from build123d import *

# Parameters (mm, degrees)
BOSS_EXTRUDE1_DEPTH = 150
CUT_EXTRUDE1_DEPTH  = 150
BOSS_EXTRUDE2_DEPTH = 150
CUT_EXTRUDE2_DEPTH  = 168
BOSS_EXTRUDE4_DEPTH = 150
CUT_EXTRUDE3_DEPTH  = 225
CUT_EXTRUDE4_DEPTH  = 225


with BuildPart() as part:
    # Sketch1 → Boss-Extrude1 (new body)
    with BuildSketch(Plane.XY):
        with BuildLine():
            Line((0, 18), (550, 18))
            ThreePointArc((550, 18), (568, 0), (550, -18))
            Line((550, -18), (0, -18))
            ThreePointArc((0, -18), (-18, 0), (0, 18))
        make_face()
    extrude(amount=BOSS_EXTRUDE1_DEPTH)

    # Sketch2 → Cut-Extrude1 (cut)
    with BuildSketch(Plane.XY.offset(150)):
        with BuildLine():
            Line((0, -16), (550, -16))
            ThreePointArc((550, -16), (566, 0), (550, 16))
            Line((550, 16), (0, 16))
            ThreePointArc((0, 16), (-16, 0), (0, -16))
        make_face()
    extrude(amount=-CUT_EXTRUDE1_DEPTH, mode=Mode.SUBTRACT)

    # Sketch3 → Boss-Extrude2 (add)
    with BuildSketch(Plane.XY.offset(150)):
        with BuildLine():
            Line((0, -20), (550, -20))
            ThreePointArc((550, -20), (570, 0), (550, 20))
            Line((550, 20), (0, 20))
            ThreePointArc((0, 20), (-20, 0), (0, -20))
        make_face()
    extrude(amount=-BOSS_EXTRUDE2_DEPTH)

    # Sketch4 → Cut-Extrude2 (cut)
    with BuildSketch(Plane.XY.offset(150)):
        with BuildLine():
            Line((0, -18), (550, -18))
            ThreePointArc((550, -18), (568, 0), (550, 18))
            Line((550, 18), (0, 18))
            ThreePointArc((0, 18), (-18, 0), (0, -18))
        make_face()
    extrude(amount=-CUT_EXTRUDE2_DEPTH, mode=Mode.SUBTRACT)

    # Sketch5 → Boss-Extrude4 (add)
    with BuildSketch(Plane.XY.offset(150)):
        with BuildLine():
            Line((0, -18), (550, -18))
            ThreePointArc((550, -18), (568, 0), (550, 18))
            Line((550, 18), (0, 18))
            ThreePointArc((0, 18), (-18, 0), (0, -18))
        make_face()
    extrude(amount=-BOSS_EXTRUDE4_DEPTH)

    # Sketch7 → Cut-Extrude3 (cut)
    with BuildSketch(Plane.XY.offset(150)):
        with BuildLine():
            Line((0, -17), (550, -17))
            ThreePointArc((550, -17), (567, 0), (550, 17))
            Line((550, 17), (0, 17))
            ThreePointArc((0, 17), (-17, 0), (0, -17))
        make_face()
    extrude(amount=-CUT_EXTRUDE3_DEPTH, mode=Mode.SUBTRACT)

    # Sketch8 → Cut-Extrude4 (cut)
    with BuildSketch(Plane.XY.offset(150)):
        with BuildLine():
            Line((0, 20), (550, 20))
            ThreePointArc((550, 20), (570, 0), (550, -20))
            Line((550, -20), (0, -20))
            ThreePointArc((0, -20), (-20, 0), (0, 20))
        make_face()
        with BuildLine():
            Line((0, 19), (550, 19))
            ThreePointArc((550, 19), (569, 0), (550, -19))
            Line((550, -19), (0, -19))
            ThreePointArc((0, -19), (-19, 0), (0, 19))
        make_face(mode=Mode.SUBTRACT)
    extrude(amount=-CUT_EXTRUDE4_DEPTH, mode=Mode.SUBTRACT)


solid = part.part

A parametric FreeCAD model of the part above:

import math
import FreeCAD as App
import Part
import Sketcher
from FreeCAD import Vector
Q = App.Units.Quantity

doc = App.newDocument("Part")
body = doc.addObject("PartDesign::Body", "Body")

sketch1 = body.newObject("Sketcher::SketchObject", "Sketch")
sketch1.AttachmentSupport = (doc.getObject("XY_Plane"), [""])
sketch1.MapMode = "FlatFace"
sketch1.addGeometry(Part.LineSegment(Vector(550, 18, 0), Vector(0, 18, 0)), False)
sketch1.addGeometry(Part.ArcOfCircle(Part.Circle(Vector(0, 0, 0), Vector(0, 0, 1), 18), math.radians(90), math.radians(270)), False)
sketch1.addGeometry(Part.LineSegment(Vector(0, -18, 0), Vector(550, -18, 0)), False)
sketch1.addGeometry(Part.ArcOfCircle(Part.Circle(Vector(550, 0, 0), Vector(0, 0, 1), 18), math.radians(-90), math.radians(90)), False)
sketch1.addConstraint(Sketcher.Constraint("Tangent", 0, 2, 1, 1))
sketch1.addConstraint(Sketcher.Constraint("Tangent", 1, 2, 2, 1))
sketch1.addConstraint(Sketcher.Constraint("Tangent", 2, 2, 3, 1))
sketch1.addConstraint(Sketcher.Constraint("Tangent", 3, 2, 0, 1))
sketch1.addConstraint(Sketcher.Constraint("Horizontal", 0))
sketch1.addConstraint(Sketcher.Constraint("Horizontal", 2))
sketch1.addConstraint(Sketcher.Constraint("Coincident", 1, 3, -1, 1))
sketch1.addConstraint(Sketcher.Constraint("Radius", 1, Q("18 mm")))
sketch1.addConstraint(Sketcher.Constraint("DistanceX", 0, 2, 0, 1, Q("550 mm")))
pad1 = body.newObject("PartDesign::Pad", "Pad")
pad1.Profile = sketch1
pad1.Length = 150

sketch2 = body.newObject("Sketcher::SketchObject", "Sketch001")
sketch2.AttachmentSupport = (doc.getObject("XY_Plane"), [""])
sketch2.MapMode = "FlatFace"
sketch2.AttachmentOffset = App.Placement(Vector(0, 0, 150), App.Rotation())
sketch2.addGeometry(Part.LineSegment(Vector(0, -16, 0), Vector(550, -16, 0)), False)
sketch2.addGeometry(Part.ArcOfCircle(Part.Circle(Vector(550, 0, 0), Vector(0, 0, 1), 16), math.radians(-90), math.radians(90)), False)
sketch2.addGeometry(Part.LineSegment(Vector(550, 16, 0), Vector(0, 16, 0)), False)
sketch2.addGeometry(Part.ArcOfCircle(Part.Circle(Vector(0, 0, 0), Vector(0, 0, 1), 16), math.radians(90), math.radians(270)), False)
sketch2.addConstraint(Sketcher.Constraint("Tangent", 0, 2, 1, 1))
sketch2.addConstraint(Sketcher.Constraint("Tangent", 1, 2, 2, 1))
sketch2.addConstraint(Sketcher.Constraint("Tangent", 2, 2, 3, 1))
sketch2.addConstraint(Sketcher.Constraint("Tangent", 3, 2, 0, 1))
sketch2.addConstraint(Sketcher.Constraint("Horizontal", 0))
sketch2.addConstraint(Sketcher.Constraint("Horizontal", 2))
sketch2.addConstraint(Sketcher.Constraint("Coincident", 3, 3, -1, 1))
sketch2.addConstraint(Sketcher.Constraint("Radius", 1, Q("16 mm")))
sketch2.addConstraint(Sketcher.Constraint("DistanceX", 0, 1, 0, 2, Q("550 mm")))
pocket1 = body.newObject("PartDesign::Pocket", "Pocket")
pocket1.Profile = sketch2
pocket1.Length = 150

sketch3 = body.newObject("Sketcher::SketchObject", "Sketch002")
sketch3.AttachmentSupport = (doc.getObject("XY_Plane"), [""])
sketch3.MapMode = "FlatFace"
sketch3.AttachmentOffset = App.Placement(Vector(0, 0, 150), App.Rotation())
sketch3.addGeometry(Part.LineSegment(Vector(0, -20, 0), Vector(550, -20, 0)), False)
sketch3.addGeometry(Part.ArcOfCircle(Part.Circle(Vector(550, 0, 0), Vector(0, 0, 1), 20), math.radians(-90), math.radians(90)), False)
sketch3.addGeometry(Part.LineSegment(Vector(550, 20, 0), Vector(0, 20, 0)), False)
sketch3.addGeometry(Part.ArcOfCircle(Part.Circle(Vector(0, 0, 0), Vector(0, 0, 1), 20), math.radians(90), math.radians(270)), False)
sketch3.addConstraint(Sketcher.Constraint("Tangent", 0, 2, 1, 1))
sketch3.addConstraint(Sketcher.Constraint("Tangent", 1, 2, 2, 1))
sketch3.addConstraint(Sketcher.Constraint("Tangent", 2, 2, 3, 1))
sketch3.addConstraint(Sketcher.Constraint("Tangent", 3, 2, 0, 1))
sketch3.addConstraint(Sketcher.Constraint("Horizontal", 0))
sketch3.addConstraint(Sketcher.Constraint("Horizontal", 2))
sketch3.addConstraint(Sketcher.Constraint("Coincident", 3, 3, -1, 1))
sketch3.addConstraint(Sketcher.Constraint("Radius", 1, Q("20 mm")))
sketch3.addConstraint(Sketcher.Constraint("DistanceX", 0, 1, 0, 2, Q("550 mm")))
pad2 = body.newObject("PartDesign::Pad", "Pad001")
pad2.Profile = sketch3
pad2.Length = 150
pad2.Reversed = True

sketch4 = body.newObject("Sketcher::SketchObject", "Sketch003")
sketch4.AttachmentSupport = (doc.getObject("XY_Plane"), [""])
sketch4.MapMode = "FlatFace"
sketch4.AttachmentOffset = App.Placement(Vector(0, 0, 150), App.Rotation())
sketch4.addGeometry(Part.LineSegment(Vector(0, -18, 0), Vector(550, -18, 0)), False)
sketch4.addGeometry(Part.ArcOfCircle(Part.Circle(Vector(550, 0, 0), Vector(0, 0, 1), 18), math.radians(-90), math.radians(90)), False)
sketch4.addGeometry(Part.LineSegment(Vector(550, 18, 0), Vector(0, 18, 0)), False)
sketch4.addGeometry(Part.ArcOfCircle(Part.Circle(Vector(0, 0, 0), Vector(0, 0, 1), 18), math.radians(90), math.radians(270)), False)
sketch4.addConstraint(Sketcher.Constraint("Tangent", 0, 2, 1, 1))
sketch4.addConstraint(Sketcher.Constraint("Tangent", 1, 2, 2, 1))
sketch4.addConstraint(Sketcher.Constraint("Tangent", 2, 2, 3, 1))
sketch4.addConstraint(Sketcher.Constraint("Tangent", 3, 2, 0, 1))
sketch4.addConstraint(Sketcher.Constraint("Horizontal", 0))
sketch4.addConstraint(Sketcher.Constraint("Horizontal", 2))
sketch4.addConstraint(Sketcher.Constraint("Coincident", 3, 3, -1, 1))
sketch4.addConstraint(Sketcher.Constraint("Radius", 1, Q("18 mm")))
sketch4.addConstraint(Sketcher.Constraint("DistanceX", 0, 1, 0, 2, Q("550 mm")))
pocket2 = body.newObject("PartDesign::Pocket", "Pocket001")
pocket2.Profile = sketch4
pocket2.Length = 168

sketch5 = body.newObject("Sketcher::SketchObject", "Sketch004")
sketch5.AttachmentSupport = (doc.getObject("XY_Plane"), [""])
sketch5.MapMode = "FlatFace"
sketch5.AttachmentOffset = App.Placement(Vector(0, 0, 150), App.Rotation())
sketch5.addGeometry(Part.LineSegment(Vector(0, -18, 0), Vector(550, -18, 0)), False)
sketch5.addGeometry(Part.ArcOfCircle(Part.Circle(Vector(550, 0, 0), Vector(0, 0, 1), 18), math.radians(-90), math.radians(90)), False)
sketch5.addGeometry(Part.LineSegment(Vector(550, 18, 0), Vector(0, 18, 0)), False)
sketch5.addGeometry(Part.ArcOfCircle(Part.Circle(Vector(0, 0, 0), Vector(0, 0, 1), 18), math.radians(90), math.radians(270)), False)
sketch5.addConstraint(Sketcher.Constraint("Tangent", 0, 2, 1, 1))
sketch5.addConstraint(Sketcher.Constraint("Tangent", 1, 2, 2, 1))
sketch5.addConstraint(Sketcher.Constraint("Tangent", 2, 2, 3, 1))
sketch5.addConstraint(Sketcher.Constraint("Tangent", 3, 2, 0, 1))
sketch5.addConstraint(Sketcher.Constraint("Horizontal", 0))
sketch5.addConstraint(Sketcher.Constraint("Horizontal", 2))
sketch5.addConstraint(Sketcher.Constraint("Coincident", 3, 3, -1, 1))
sketch5.addConstraint(Sketcher.Constraint("Radius", 1, Q("18 mm")))
sketch5.addConstraint(Sketcher.Constraint("DistanceX", 0, 1, 0, 2, Q("550 mm")))
pad3 = body.newObject("PartDesign::Pad", "Pad002")
pad3.Profile = sketch5
pad3.Length = 150
pad3.Reversed = True

sketch6 = body.newObject("Sketcher::SketchObject", "Sketch005")
sketch6.AttachmentSupport = (doc.getObject("XY_Plane"), [""])
sketch6.MapMode = "FlatFace"
sketch6.AttachmentOffset = App.Placement(Vector(0, 0, 150), App.Rotation())
sketch6.addGeometry(Part.LineSegment(Vector(0, -17, 0), Vector(550, -17, 0)), False)
sketch6.addGeometry(Part.ArcOfCircle(Part.Circle(Vector(550, 0, 0), Vector(0, 0, 1), 17), math.radians(-90), math.radians(90)), False)
sketch6.addGeometry(Part.LineSegment(Vector(550, 17, 0), Vector(0, 17, 0)), False)
sketch6.addGeometry(Part.ArcOfCircle(Part.Circle(Vector(0, 0, 0), Vector(0, 0, 1), 17), math.radians(90), math.radians(270)), False)
sketch6.addConstraint(Sketcher.Constraint("Tangent", 0, 2, 1, 1))
sketch6.addConstraint(Sketcher.Constraint("Tangent", 1, 2, 2, 1))
sketch6.addConstraint(Sketcher.Constraint("Tangent", 2, 2, 3, 1))
sketch6.addConstraint(Sketcher.Constraint("Tangent", 3, 2, 0, 1))
sketch6.addConstraint(Sketcher.Constraint("Horizontal", 0))
sketch6.addConstraint(Sketcher.Constraint("Horizontal", 2))
sketch6.addConstraint(Sketcher.Constraint("Coincident", 3, 3, -1, 1))
sketch6.addConstraint(Sketcher.Constraint("Radius", 1, Q("17 mm")))
sketch6.addConstraint(Sketcher.Constraint("DistanceX", 0, 1, 0, 2, Q("550 mm")))
pocket3 = body.newObject("PartDesign::Pocket", "Pocket002")
pocket3.Profile = sketch6
pocket3.Length = 225

sketch7 = body.newObject("Sketcher::SketchObject", "Sketch006")
sketch7.AttachmentSupport = (doc.getObject("XY_Plane"), [""])
sketch7.MapMode = "FlatFace"
sketch7.AttachmentOffset = App.Placement(Vector(0, 0, 150), App.Rotation())
sketch7.addGeometry(Part.LineSegment(Vector(550, 20, 0), Vector(0, 20, 0)), False)
sketch7.addGeometry(Part.ArcOfCircle(Part.Circle(Vector(0, 0, 0), Vector(0, 0, 1), 20), math.radians(90), math.radians(270)), False)
sketch7.addGeometry(Part.LineSegment(Vector(0, -20, 0), Vector(550, -20, 0)), False)
sketch7.addGeometry(Part.ArcOfCircle(Part.Circle(Vector(550, 0, 0), Vector(0, 0, 1), 20), math.radians(-90), math.radians(90)), False)
sketch7.addGeometry(Part.LineSegment(Vector(0, 19, 0), Vector(550, 19, 0)), False)
sketch7.addGeometry(Part.ArcOfCircle(Part.Circle(Vector(550, 0, 0), Vector(0, 0, 1), 19), math.radians(-90), math.radians(90)), False)
sketch7.addGeometry(Part.LineSegment(Vector(550, -19, 0), Vector(0, -19, 0)), False)
sketch7.addGeometry(Part.ArcOfCircle(Part.Circle(Vector(0, 0, 0), Vector(0, 0, 1), 19), math.radians(90), math.radians(270)), False)
sketch7.addConstraint(Sketcher.Constraint("Tangent", 0, 2, 1, 1))
sketch7.addConstraint(Sketcher.Constraint("Tangent", 1, 2, 2, 1))
sketch7.addConstraint(Sketcher.Constraint("Tangent", 2, 2, 3, 1))
sketch7.addConstraint(Sketcher.Constraint("Tangent", 3, 2, 0, 1))
sketch7.addConstraint(Sketcher.Constraint("Tangent", 4, 2, 5, 2))
sketch7.addConstraint(Sketcher.Constraint("Tangent", 5, 1, 6, 1))
sketch7.addConstraint(Sketcher.Constraint("Tangent", 6, 2, 7, 2))
sketch7.addConstraint(Sketcher.Constraint("Tangent", 7, 1, 4, 1))
sketch7.addConstraint(Sketcher.Constraint("Horizontal", 0))
sketch7.addConstraint(Sketcher.Constraint("Horizontal", 2))
sketch7.addConstraint(Sketcher.Constraint("Horizontal", 4))
sketch7.addConstraint(Sketcher.Constraint("Horizontal", 6))
sketch7.addConstraint(Sketcher.Constraint("Coincident", 1, 3, -1, 1))
sketch7.addConstraint(Sketcher.Constraint("Coincident", 7, 3, -1, 1))
sketch7.addConstraint(Sketcher.Constraint("Vertical", 5, 3, 2, 2))
sketch7.addConstraint(Sketcher.Constraint("Radius", 1, Q("20 mm")))
sketch7.addConstraint(Sketcher.Constraint("Radius", 5, Q("19 mm")))
sketch7.addConstraint(Sketcher.Constraint("DistanceX", 0, 2, 0, 1, Q("550 mm")))
pocket4 = body.newObject("PartDesign::Pocket", "Pocket003")
pocket4.Profile = sketch7
pocket4.Length = 225

doc.recompute()
